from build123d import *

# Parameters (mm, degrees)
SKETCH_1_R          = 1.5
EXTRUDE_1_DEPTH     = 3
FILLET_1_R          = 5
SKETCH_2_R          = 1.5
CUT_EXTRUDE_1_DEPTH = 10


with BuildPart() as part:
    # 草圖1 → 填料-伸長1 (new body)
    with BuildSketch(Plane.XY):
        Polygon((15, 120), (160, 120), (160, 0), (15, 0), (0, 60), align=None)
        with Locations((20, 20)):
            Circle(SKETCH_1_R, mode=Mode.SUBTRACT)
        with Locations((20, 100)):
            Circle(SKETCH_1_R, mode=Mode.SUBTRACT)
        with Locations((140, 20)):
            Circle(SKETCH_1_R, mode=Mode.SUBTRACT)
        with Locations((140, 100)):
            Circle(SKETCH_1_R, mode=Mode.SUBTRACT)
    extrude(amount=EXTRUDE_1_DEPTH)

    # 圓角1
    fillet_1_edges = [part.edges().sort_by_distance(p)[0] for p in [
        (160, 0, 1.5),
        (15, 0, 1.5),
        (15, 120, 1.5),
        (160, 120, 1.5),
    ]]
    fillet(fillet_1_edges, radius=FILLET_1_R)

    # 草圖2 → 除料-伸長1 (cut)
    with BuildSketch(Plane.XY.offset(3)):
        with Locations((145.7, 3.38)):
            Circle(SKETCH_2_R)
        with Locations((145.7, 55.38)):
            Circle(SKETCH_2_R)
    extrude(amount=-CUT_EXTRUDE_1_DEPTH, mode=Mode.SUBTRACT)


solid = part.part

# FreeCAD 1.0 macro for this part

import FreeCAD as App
import Part
import Sketcher


def edges_at(feature, points):
    """Names of the edges that pass closest to the given points."""
    edges = feature.Shape.Edges
    near = lambda p: min(range(len(edges)), key=lambda i: edges[i].distToShape(Part.Vertex(*p))[0])
    return sorted({f"Edge{near(p) + 1}" for p in points})

doc = App.newDocument("Part")
body = doc.addObject("PartDesign::Body", "Body")

# Sketch on XY plane
sketch1 = doc.addObject("Sketcher::SketchObject", "Sketch")
body.addObject(sketch1)
sketch1.AttachmentSupport = (doc.XY_Plane, [""])
sketch1.MapMode = "FlatFace"
sketch1.addGeometry([
    Part.LineSegment(App.Vector(160, 120, 0), App.Vector(15, 120, 0)),  # 0
    Part.LineSegment(App.Vector(15, 120, 0), App.Vector(0, 60, 0)),  # 1
    Part.LineSegment(App.Vector(0, 60, 0), App.Vector(15, 0, 0)),  # 2
    Part.LineSegment(App.Vector(15, 0, 0), App.Vector(160, 0, 0)),  # 3
    Part.LineSegment(App.Vector(160, 0, 0), App.Vector(160, 120, 0)),  # 4
    Part.Circle(App.Vector(140, 20, 0), App.Vector(0, 0, 1), 1.5),  # 5
    Part.Circle(App.Vector(20, 20, 0), App.Vector(0, 0, 1), 1.5),  # 6
    Part.Circle(App.Vector(140, 100, 0), App.Vector(0, 0, 1), 1.5),  # 7
    Part.Circle(App.Vector(20, 100, 0), App.Vector(0, 0, 1), 1.5),  # 8
], False)
sketch1.addConstraint([
    Sketcher.Constraint("Coincident", 0, 2, 1, 1),
    Sketcher.Constraint("Coincident", 1, 2, 2, 1),
    Sketcher.Constraint("Coincident", 2, 2, 3, 1),
    Sketcher.Constraint("Coincident", 3, 2, 4, 1),
    Sketcher.Constraint("Coincident", 4, 2, 0, 1),
    Sketcher.Constraint("Horizontal", 0),
    Sketcher.Constraint("Horizontal", 3),
    Sketcher.Constraint("Vertical", 4),
    Sketcher.Constraint("Equal", 5, 6),
    Sketcher.Constraint("Equal", 6, 7),
    Sketcher.Constraint("Equal", 7, 8),
    Sketcher.Constraint("PointOnObject", 1, 2, -2),
    Sketcher.Constraint("PointOnObject", 2, 2, -1),
    Sketcher.Constraint("Horizontal", 5, 3, 6, 3),
    Sketcher.Constraint("Horizontal", 7, 3, 8, 3),
    Sketcher.Constraint("Vertical", 5, 3, 7, 3),
    Sketcher.Constraint("Vertical", 6, 3, 8, 3),
    Sketcher.Constraint("Vertical", 0, 2, 2, 2),
    Sketcher.Constraint("Equal", 1, 2),
    Sketcher.Constraint("Diameter", 5, 3.0),
    Sketcher.Constraint("DistanceX", 0, 2, 0, 1, 145.0),
    Sketcher.Constraint("DistanceY", 4, 1, 4, 2, 120.0),
    Sketcher.Constraint("DistanceX", -1, 1, 5, 3, 140.0),
    Sketcher.Constraint("DistanceY", -1, 1, 5, 3, 20.0),
    Sketcher.Constraint("DistanceX", -1, 1, 6, 3, 20.0),
    Sketcher.Constraint("DistanceY", -1, 1, 7, 3, 100.0),
    Sketcher.Constraint("DistanceX", -1, 1, 0, 2, 15.0),
])
pad1 = doc.addObject("PartDesign::Pad", "Pad")
body.addObject(pad1)
pad1.Profile = sketch1
pad1.Length = 3
doc.recompute()

fillet = doc.addObject("PartDesign::Fillet", "Fillet")
body.addObject(fillet)
fillet.Base = (pad1, edges_at(pad1, [
    (160, 0, 1.5),
    (15, 0, 1.5),
    (15, 120, 1.5),
    (160, 120, 1.5),
]))
fillet.Radius = 5

# Sketch on XY plane
sketch2 = doc.addObject("Sketcher::SketchObject", "Sketch001")
body.addObject(sketch2)
sketch2.AttachmentSupport = (doc.XY_Plane, [""])
sketch2.MapMode = "FlatFace"
sketch2.AttachmentOffset = App.Placement(App.Vector(0, 0, 3), App.Rotation())
sketch2.addGeometry([
    Part.Circle(App.Vector(145.7, 3.4, 0), App.Vector(0, 0, 1), 1.5),
    Part.Circle(App.Vector(145.7, 55.4, 0), App.Vector(0, 0, 1), 1.5),
], False)
sketch2.addConstraint([
    Sketcher.Constraint("Equal", 0, 1),
    Sketcher.Constraint("Vertical", 0, 3, 1, 3),
    Sketcher.Constraint("Diameter", 0, 3.0),
    Sketcher.Constraint("DistanceY", 0, 3, 1, 3, 52.0),
    Sketcher.Constraint("DistanceX", -1, 1, 0, 3, 145.7),
    Sketcher.Constraint("DistanceY", -1, 1, 0, 3, 3.38),
])
pocket1 = doc.addObject("PartDesign::Pocket", "Pocket")
body.addObject(pocket1)
pocket1.Profile = sketch2
pocket1.Length = 10

doc.recompute()
